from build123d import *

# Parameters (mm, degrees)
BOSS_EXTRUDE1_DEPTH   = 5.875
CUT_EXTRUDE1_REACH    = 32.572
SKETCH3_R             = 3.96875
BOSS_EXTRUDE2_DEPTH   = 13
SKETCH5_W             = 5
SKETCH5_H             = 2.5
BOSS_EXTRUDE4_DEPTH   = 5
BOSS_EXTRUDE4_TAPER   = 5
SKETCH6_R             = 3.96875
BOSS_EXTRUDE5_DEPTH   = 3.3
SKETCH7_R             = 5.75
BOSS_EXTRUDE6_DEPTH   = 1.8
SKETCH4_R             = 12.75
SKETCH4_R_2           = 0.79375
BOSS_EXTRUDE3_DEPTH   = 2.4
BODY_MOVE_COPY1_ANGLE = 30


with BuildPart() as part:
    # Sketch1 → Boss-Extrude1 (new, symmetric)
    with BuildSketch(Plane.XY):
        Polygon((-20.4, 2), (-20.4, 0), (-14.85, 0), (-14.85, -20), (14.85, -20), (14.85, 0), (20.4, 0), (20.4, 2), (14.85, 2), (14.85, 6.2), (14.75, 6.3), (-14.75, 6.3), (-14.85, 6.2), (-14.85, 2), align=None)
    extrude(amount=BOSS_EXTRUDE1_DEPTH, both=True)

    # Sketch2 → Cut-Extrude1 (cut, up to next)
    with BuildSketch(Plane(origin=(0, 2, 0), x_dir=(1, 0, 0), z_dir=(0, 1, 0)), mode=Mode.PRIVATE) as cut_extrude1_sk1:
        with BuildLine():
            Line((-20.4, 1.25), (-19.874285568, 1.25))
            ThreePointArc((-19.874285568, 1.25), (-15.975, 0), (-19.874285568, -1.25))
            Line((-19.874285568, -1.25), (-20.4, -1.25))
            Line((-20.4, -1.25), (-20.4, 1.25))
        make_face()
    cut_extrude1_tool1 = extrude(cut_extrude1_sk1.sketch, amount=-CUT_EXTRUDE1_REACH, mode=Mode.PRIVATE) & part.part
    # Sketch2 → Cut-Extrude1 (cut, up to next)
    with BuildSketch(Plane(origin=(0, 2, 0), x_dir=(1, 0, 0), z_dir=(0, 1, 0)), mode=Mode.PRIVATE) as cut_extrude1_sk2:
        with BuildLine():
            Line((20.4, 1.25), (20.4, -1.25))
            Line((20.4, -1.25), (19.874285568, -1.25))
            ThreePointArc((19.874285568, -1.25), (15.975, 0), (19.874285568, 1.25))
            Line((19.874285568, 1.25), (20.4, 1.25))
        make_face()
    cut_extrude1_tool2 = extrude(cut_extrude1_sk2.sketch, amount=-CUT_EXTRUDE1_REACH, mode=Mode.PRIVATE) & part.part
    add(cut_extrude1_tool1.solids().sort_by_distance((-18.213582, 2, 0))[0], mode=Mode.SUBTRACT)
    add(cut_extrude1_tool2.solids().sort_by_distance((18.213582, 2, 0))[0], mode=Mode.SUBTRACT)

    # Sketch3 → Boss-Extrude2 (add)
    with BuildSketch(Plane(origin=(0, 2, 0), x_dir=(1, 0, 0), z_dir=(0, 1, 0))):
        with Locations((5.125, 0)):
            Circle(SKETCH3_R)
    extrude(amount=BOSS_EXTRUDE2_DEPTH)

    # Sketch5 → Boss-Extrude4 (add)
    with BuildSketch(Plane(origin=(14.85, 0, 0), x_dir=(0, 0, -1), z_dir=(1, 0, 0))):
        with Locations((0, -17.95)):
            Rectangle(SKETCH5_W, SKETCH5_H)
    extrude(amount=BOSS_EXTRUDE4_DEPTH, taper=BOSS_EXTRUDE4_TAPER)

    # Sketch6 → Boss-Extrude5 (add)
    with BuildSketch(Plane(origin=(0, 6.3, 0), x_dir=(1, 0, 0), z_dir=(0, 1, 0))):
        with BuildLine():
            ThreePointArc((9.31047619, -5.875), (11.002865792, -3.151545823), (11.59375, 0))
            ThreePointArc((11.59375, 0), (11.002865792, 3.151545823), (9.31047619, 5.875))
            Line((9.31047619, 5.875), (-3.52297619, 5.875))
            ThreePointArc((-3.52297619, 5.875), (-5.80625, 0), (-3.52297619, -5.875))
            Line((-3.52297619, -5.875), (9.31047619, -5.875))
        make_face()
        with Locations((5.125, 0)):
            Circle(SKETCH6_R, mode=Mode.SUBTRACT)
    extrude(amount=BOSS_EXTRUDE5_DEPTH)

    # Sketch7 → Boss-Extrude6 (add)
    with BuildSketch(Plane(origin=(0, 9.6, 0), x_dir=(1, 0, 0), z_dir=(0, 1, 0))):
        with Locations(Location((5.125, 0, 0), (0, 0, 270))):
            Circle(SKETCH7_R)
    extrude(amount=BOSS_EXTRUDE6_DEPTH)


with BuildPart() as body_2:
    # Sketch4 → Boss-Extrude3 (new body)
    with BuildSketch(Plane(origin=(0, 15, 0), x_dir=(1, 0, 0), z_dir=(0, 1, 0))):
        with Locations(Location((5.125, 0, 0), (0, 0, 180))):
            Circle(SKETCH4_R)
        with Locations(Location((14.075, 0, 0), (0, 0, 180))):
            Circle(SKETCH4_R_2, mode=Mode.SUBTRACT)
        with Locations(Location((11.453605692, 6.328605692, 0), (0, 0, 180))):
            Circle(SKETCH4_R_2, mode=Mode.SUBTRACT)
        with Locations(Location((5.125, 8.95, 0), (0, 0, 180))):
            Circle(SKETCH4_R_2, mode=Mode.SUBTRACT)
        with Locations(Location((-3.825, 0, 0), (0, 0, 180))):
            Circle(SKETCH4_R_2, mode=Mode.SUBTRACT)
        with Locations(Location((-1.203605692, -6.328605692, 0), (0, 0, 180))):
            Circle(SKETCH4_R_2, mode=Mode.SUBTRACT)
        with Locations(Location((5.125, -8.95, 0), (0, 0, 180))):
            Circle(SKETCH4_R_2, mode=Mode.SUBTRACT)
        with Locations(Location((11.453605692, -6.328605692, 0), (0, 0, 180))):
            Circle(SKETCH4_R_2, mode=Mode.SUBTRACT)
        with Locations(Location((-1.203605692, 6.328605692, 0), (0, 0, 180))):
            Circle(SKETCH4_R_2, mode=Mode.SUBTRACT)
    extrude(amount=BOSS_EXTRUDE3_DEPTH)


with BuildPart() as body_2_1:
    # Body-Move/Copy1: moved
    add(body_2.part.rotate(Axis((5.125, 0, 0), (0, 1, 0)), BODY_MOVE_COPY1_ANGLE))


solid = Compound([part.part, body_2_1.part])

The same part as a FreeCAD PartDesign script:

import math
import FreeCAD as App
import Part
import Sketcher
from FreeCAD import Vector


def add_polygon(sketch, points):
    """Adds a closed chain of lines whose ends are joined by coincident constraints."""
    first, n = sketch.GeometryCount, len(points)
    for a, b in zip(points, points[1:] + points[:1]):
        sketch.addGeometry(Part.LineSegment(App.Vector(*a, 0), App.Vector(*b, 0)), False)
    for i in range(n):
        sketch.addConstraint(Sketcher.Constraint("Coincident", first + i, 2, first + (i + 1) % n, 1))

doc = App.newDocument("Part")
body = doc.addObject("PartDesign::Body", "Body")

# Sketch on XY plane
sketch1 = doc.addObject("Sketcher::SketchObject", "Sketch")
body.addObject(sketch1)
sketch1.AttachmentSupport = (doc.XY_Plane, [""])
sketch1.MapMode = "FlatFace"
add_polygon(sketch1, [(-20.4, 2), (-20.4, 0), (-14.85, 0), (-14.85, -20), (14.85, -20), (14.85, 0), (20.4, 0), (20.4, 2), (14.85, 2), (14.85, 6.2), (14.75, 6.3), (-14.75, 6.3), (-14.85, 6.2), (-14.85, 2)])  # lines 0-13
sketch1.addConstraint([
    Sketcher.Constraint("Vertical", 0),
    Sketcher.Constraint("Horizontal", 1),
    Sketcher.Constraint("Vertical", 2),
    Sketcher.Constraint("Horizontal", 3),
    Sketcher.Constraint("Vertical", 4),
    Sketcher.Constraint("Horizontal", 5),
    Sketcher.Constraint("Vertical", 6),
    Sketcher.Constraint("Horizontal", 7),
    Sketcher.Constraint("Vertical", 8),
    Sketcher.Constraint("Horizontal", 10),
    Sketcher.Constraint("Vertical", 12),
    Sketcher.Constraint("Horizontal", 13),
    Sketcher.Constraint("Symmetric", 1, 2, 4, 2, -1, 1),
    Sketcher.Constraint("Symmetric", 0, 2, 5, 2, -2),
    Sketcher.Constraint("Symmetric", 8, 2, 11, 2, -2),
    Sketcher.Constraint("Perpendicular", 9, 11),
    Sketcher.Constraint("Horizontal", 7, 2, 12, 2),
    Sketcher.Constraint("Vertical", 4, 2, 7, 2),
    Sketcher.Constraint("Equal", 9, 11),
    Sketcher.Constraint("DistanceY", 0, 2, 0, 1, 2.0),
    Sketcher.Constraint("DistanceY", 2, 2, 2, 1, 20.0),
    Sketcher.Constraint("DistanceX", 3, 1, 3, 2, 29.7),
    Sketcher.Constraint("DistanceX", 10, 2, 10, 1, 29.5),
    Sketcher.Constraint("DistanceY", 8, 1, 8, 2, 4.2),
    Sketcher.Constraint("DistanceX", 1, 1, 1, 2, 5.55),
])
pad1 = doc.addObject("PartDesign::Pad", "Pad")
body.addObject(pad1)
pad1.Profile = sketch1
pad1.Length = 11.75
pad1.Midplane = True

# Sketch on XZ plane
sketch2 = doc.addObject("Sketcher::SketchObject", "Sketch001")
body.addObject(sketch2)
sketch2.AttachmentSupport = (doc.XZ_Plane, [""])
sketch2.MapMode = "FlatFace"
sketch2.AttachmentOffset = App.Placement(Vector(0, 0, -2), App.Rotation())
sketch2.addGeometry([
    Part.LineSegment(Vector(-19.9, -1.2, 0), Vector(-20.4, -1.2, 0)),
    Part.LineSegment(Vector(-20.4, -1.2, 0), Vector(-20.4, 1.2, 0)),
    Part.LineSegment(Vector(-20.4, 1.2, 0), Vector(-19.9, 1.2, 0)),
    Part.ArcOfCircle(Part.Circle(Vector(-18.1, 0, 0), Vector(0, 0, 1), 2.1), math.radians(-144), math.radians(144)),
], False)
sketch2.addConstraint([
    Sketcher.Constraint("Coincident", 0, 2, 1, 1),
    Sketcher.Constraint("Coincident", 1, 2, 2, 1),
    Sketcher.Constraint("Coincident", 2, 2, 3, 2),
    Sketcher.Constraint("Coincident", 3, 1, 0, 1),
    Sketcher.Constraint("Horizontal", 0),
    Sketcher.Constraint("Vertical", 1),
    Sketcher.Constraint("Horizontal", 2),
    Sketcher.Constraint("Symmetric", 2, 2, 3, 1, -1),
    Sketcher.Constraint("Radius", 3, 2.15),
    Sketcher.Constraint("DistanceY", 1, 1, 1, 2, 2.5),
    Sketcher.Constraint("DistanceX", 0, 2, -1, 1, 20.4),
    Sketcher.Constraint("DistanceX", 3, 3, -1, 1, 18.125),
])
pocket1 = doc.addObject("PartDesign::Pocket", "Pocket")
body.addObject(pocket1)
pocket1.Profile = sketch2
pocket1.Type = "UpToFirst"
pocket1.Reversed = True

# Sketch on XZ plane
sketch3 = doc.addObject("Sketcher::SketchObject", "Sketch002")
body.addObject(sketch3)
sketch3.AttachmentSupport = (doc.XZ_Plane, [""])
sketch3.MapMode = "FlatFace"
sketch3.AttachmentOffset = App.Placement(Vector(0, 0, -2), App.Rotation())
sketch3.addGeometry([
    Part.LineSegment(Vector(20.4, 1.2, 0), Vector(20.4, -1.2, 0)),
    Part.LineSegment(Vector(20.4, -1.2, 0), Vector(19.9, -1.2, 0)),
    Part.ArcOfCircle(Part.Circle(Vector(18.1, 0, 0), Vector(0, 0, 1), 2.1), math.radians(36), math.radians(324)),
    Part.LineSegment(Vector(19.9, 1.2, 0), Vector(20.4, 1.2, 0)),
], False)
sketch3.addConstraint([
    Sketcher.Constraint("Coincident", 0, 2, 1, 1),
    Sketcher.Constraint("Coincident", 1, 2, 2, 2),
    Sketcher.Constraint("Coincident", 2, 1, 3, 1),
    Sketcher.Constraint("Coincident", 3, 2, 0, 1),
    Sketcher.Constraint("Vertical", 0),
    Sketcher.Constraint("Horizontal", 1),
    Sketcher.Constraint("Horizontal", 3),
    Sketcher.Constraint("Symmetric", 1, 2, 2, 1, -1),
    Sketcher.Constraint("Radius", 2, 2.15),
    Sketcher.Constraint("DistanceY", 0, 2, 0, 1, 2.5),
    Sketcher.Constraint("DistanceX", -1, 1, 0, 2, 20.4),
    Sketcher.Constraint("DistanceX", -1, 1, 2, 3, 18.125),
])
pocket2 = doc.addObject("PartDesign::Pocket", "Pocket001")
body.addObject(pocket2)
pocket2.Profile = sketch3
pocket2.Type = "UpToFirst"
pocket2.Reversed = True

# Sketch on XZ plane
sketch4 = doc.addObject("Sketcher::SketchObject", "Sketch003")
body.addObject(sketch4)
sketch4.AttachmentSupport = (doc.XZ_Plane, [""])
sketch4.MapMode = "FlatFace"
sketch4.AttachmentOffset = App.Placement(Vector(0, 0, -2), App.Rotation())
sketch4.addGeometry(Part.Circle(Vector(5.1, 0, 0), Vector(0, 0, 1), 4), False)
sketch4.addConstraint([
    Sketcher.Constraint("PointOnObject", 0, 3, -1),
    Sketcher.Constraint("Diameter", 0, 7.9375),
    Sketcher.Constraint("DistanceX", -1, 1, 0, 3, 5.125),
])
pad2 = doc.addObject("PartDesign::Pad", "Pad001")
body.addObject(pad2)
pad2.Profile = sketch4
pad2.Length = 13
pad2.Reversed = True

# Sketch on YZ plane
sketch5 = doc.addObject("Sketcher::SketchObject", "Sketch004")
body.addObject(sketch5)
sketch5.AttachmentSupport = (doc.YZ_Plane, [""])
sketch5.MapMode = "FlatFace"
sketch5.AttachmentOffset = App.Placement(Vector(0, 0, 14.85), App.Rotation())
add_polygon(sketch5, [(-16.7, 2.5), (-19.2, 2.5), (-19.2, -2.5), (-16.7, -2.5)])  # lines 0-3
sketch5.addConstraint([
    Sketcher.Constraint("Horizontal", 0),
    Sketcher.Constraint("Vertical", 1),
    Sketcher.Constraint("Horizontal", 2),
    Sketcher.Constraint("Vertical", 3),
    Sketcher.Constraint("DistanceY", 1, 2, 1, 1, 5.0),
    Sketcher.Constraint("DistanceX", 0, 2, 0, 1, 2.5),
    Sketcher.Constraint("DistanceX", 0, 2, -1, 1, 19.2),
    Sketcher.Constraint("DistanceY", -1, 1, 0, 2, 2.5),
])
pad3 = doc.addObject("PartDesign::Pad", "Pad002")
body.addObject(pad3)
pad3.Profile = sketch5
pad3.Length = 5
pad3.TaperAngle = -5

# Sketch on XZ plane
sketch6 = doc.addObject("Sketcher::SketchObject", "Sketch005")
body.addObject(sketch6)
sketch6.AttachmentSupport = (doc.XZ_Plane, [""])
sketch6.MapMode = "FlatFace"
sketch6.AttachmentOffset = App.Placement(Vector(0, 0, -6.3), App.Rotation())
sketch6.addGeometry([
    Part.ArcOfCircle(Part.Circle(Vector(2.9, 0, 0), Vector(0, 0, 1), 8.7), math.radians(0), math.radians(42)),  # 0
    Part.ArcOfCircle(Part.Circle(Vector(2.9, 0, 0), Vector(0, 0, 1), 8.7), math.radians(-42), math.radians(0)),  # 1
    Part.LineSegment(Vector(9.3, -5.9, 0), Vector(-3.5, -5.9, 0)),  # 2
    Part.ArcOfCircle(Part.Circle(Vector(2.9, 0, 0), Vector(0, 0, 1), 8.7), math.radians(138), math.radians(222)),  # 3
    Part.LineSegment(Vector(-3.5, 5.9, 0), Vector(9.3, 5.9, 0)),  # 4
    Part.Circle(Vector(5.1, 0, 0), Vector(0, 0, 1), 4),  # 5
], False)
sketch6.addConstraint([
    Sketcher.Constraint("Tangent", 0, 1, 1, 2),
    Sketcher.Constraint("Coincident", 1, 1, 2, 1),
    Sketcher.Constraint("Coincident", 2, 2, 3, 2),
    Sketcher.Constraint("Coincident", 3, 1, 4, 1),
    Sketcher.Constraint("Coincident", 4, 2, 0, 2),
    Sketcher.Constraint("Horizontal", 2),
    Sketcher.Constraint("Horizontal", 4),
    Sketcher.Constraint("Coincident", 3, 3, 0, 3),
    Sketcher.Constraint("Equal", 0, 1),
    Sketcher.Constraint("Equal", 1, 3),
    Sketcher.Constraint("Symmetric", 2, 2, 3, 1, -1),
    Sketcher.Constraint("PointOnObject", 5, 3, -1),
    Sketcher.Constraint("PointOnObject", 0, 1, -1),
    Sketcher.Constraint("Radius", 0, 8.7),
    Sketcher.Constraint("Diameter", 5, 7.9375),
    Sketcher.Constraint("DistanceY", 2, 2, 3, 1, 11.75),
    Sketcher.Constraint("DistanceX", -1, 1, 5, 3, 5.125),
    Sketcher.Constraint("DistanceX", -1, 1, 0, 3, 2.89375),
])
pad4 = doc.addObject("PartDesign::Pad", "Pad003")
body.addObject(pad4)
pad4.Profile = sketch6
pad4.Length = 3.3
pad4.Reversed = True

# Sketch on XZ plane
sketch7 = doc.addObject("Sketcher::SketchObject", "Sketch006")
body.addObject(sketch7)
sketch7.AttachmentSupport = (doc.XZ_Plane, [""])
sketch7.MapMode = "FlatFace"
sketch7.AttachmentOffset = App.Placement(Vector(0, 0, -9.6), App.Rotation())
sketch7.addGeometry(Part.Circle(Vector(5, 0, 0), Vector(0, 0, 1), 6), False)
sketch7.addConstraint([
    Sketcher.Constraint("PointOnObject", 0, 3, -1),
    Sketcher.Constraint("Diameter", 0, 11.5),
    Sketcher.Constraint("DistanceX", -1, 1, 0, 3, 5.125),
])
pad5 = doc.addObject("PartDesign::Pad", "Pad004")
body.addObject(pad5)
pad5.Profile = sketch7
pad5.Length = 1.8
pad5.Reversed = True
body2 = doc.addObject("PartDesign::Body", "Body001")

# Sketch on XZ plane
sketch8 = doc.addObject("Sketcher::SketchObject", "Sketch007")
body2.addObject(sketch8)
sketch8.AttachmentSupport = (doc.getObject("XZ_Plane001"), [""])
sketch8.MapMode = "FlatFace"
sketch8.AttachmentOffset = App.Placement(Vector(0, 0, -15), App.Rotation())
sketch8.addGeometry([
    Part.Circle(Vector(5.1, 0, 0), Vector(0, 0, 1), 12.8),  # 0
    Part.Circle(Vector(11.5, -6.3, 0), Vector(0, 0, 1), 0.8),  # 1
    Part.Circle(Vector(14.1, 0, 0), Vector(0, 0, 1), 0.8),  # 2
    Part.Circle(Vector(5.1, -8.9, 0), Vector(0, 0, 1), 0.8),  # 3
    Part.Circle(Vector(-1.2, -6.3, 0), Vector(0, 0, 1), 0.8),  # 4
    Part.Circle(Vector(11.5, 6.3, 0), Vector(0, 0, 1), 0.8),  # 5
    Part.Circle(Vector(-3.8, 0, 0), Vector(0, 0, 1), 0.8),  # 6
    Part.Circle(Vector(5.1, 8.9, 0), Vector(0, 0, 1), 0.8),  # 7
    Part.Circle(Vector(-1.2, 6.3, 0), Vector(0, 0, 1), 0.8),  # 8
], False)
sketch8.addConstraint([
    Sketcher.Constraint("Equal", 1, 2),
    Sketcher.Constraint("Equal", 2, 3),
    Sketcher.Constraint("Equal", 3, 4),
    Sketcher.Constraint("Equal", 4, 5),
    Sketcher.Constraint("Equal", 5, 6),
    Sketcher.Constraint("Equal", 6, 7),
    Sketcher.Constraint("Equal", 7, 8),
    Sketcher.Constraint("Symmetric", 1, 3, 5, 3, -1),
    Sketcher.Constraint("Symmetric", 3, 3, 7, 3, -1),
    Sketcher.Constraint("Symmetric", 4, 3, 8, 3, -1),
    Sketcher.Constraint("PointOnObject", 0, 3, -1),
    Sketcher.Constraint("PointOnObject", 2, 3, -1),
    Sketcher.Constraint("PointOnObject", 6, 3, -1),
    Sketcher.Constraint("Horizontal", 1, 3, 4, 3),
    Sketcher.Constraint("Vertical", 0, 3, 3, 3),
    Sketcher.Constraint("Diameter", 0, 25.5),
    Sketcher.Constraint("Diameter", 1, 1.5875),
    Sketcher.Constraint("DistanceY", 3, 3, -1, 1, 8.95),
    Sketcher.Constraint("DistanceX", 0, 3, 2, 3, 8.95),
    Sketcher.Constraint("DistanceX", 6, 3, 0, 3, 8.95),
    Sketcher.Constraint("DistanceX", -1, 1, 0, 3, 5.125),
    Sketcher.Constraint("DistanceX", 4, 3, 1, 3, 12.657211),
    Sketcher.Constraint("DistanceY", 1, 3, 5, 3, 12.657211),
    Sketcher.Constraint("DistanceX", -1, 1, 1, 3, 11.453606),
])
pad6 = doc.addObject("PartDesign::Pad", "Pad005")
body2.addObject(pad6)
pad6.Profile = sketch8
pad6.Length = 2.4
pad6.Reversed = True
body3 = doc.addObject("PartDesign::Body", "Body002")
doc.recompute()

body2.Placement = App.Placement(Vector(0.68662, 0, 2.5625), App.Rotation(Vector(0, 1, 0), 30))
boolean = doc.addObject("PartDesign::Boolean", "Boolean")
body3.addObject(boolean)
boolean.Type = "Fuse"
boolean.addObjects([body2])

doc.recompute()
